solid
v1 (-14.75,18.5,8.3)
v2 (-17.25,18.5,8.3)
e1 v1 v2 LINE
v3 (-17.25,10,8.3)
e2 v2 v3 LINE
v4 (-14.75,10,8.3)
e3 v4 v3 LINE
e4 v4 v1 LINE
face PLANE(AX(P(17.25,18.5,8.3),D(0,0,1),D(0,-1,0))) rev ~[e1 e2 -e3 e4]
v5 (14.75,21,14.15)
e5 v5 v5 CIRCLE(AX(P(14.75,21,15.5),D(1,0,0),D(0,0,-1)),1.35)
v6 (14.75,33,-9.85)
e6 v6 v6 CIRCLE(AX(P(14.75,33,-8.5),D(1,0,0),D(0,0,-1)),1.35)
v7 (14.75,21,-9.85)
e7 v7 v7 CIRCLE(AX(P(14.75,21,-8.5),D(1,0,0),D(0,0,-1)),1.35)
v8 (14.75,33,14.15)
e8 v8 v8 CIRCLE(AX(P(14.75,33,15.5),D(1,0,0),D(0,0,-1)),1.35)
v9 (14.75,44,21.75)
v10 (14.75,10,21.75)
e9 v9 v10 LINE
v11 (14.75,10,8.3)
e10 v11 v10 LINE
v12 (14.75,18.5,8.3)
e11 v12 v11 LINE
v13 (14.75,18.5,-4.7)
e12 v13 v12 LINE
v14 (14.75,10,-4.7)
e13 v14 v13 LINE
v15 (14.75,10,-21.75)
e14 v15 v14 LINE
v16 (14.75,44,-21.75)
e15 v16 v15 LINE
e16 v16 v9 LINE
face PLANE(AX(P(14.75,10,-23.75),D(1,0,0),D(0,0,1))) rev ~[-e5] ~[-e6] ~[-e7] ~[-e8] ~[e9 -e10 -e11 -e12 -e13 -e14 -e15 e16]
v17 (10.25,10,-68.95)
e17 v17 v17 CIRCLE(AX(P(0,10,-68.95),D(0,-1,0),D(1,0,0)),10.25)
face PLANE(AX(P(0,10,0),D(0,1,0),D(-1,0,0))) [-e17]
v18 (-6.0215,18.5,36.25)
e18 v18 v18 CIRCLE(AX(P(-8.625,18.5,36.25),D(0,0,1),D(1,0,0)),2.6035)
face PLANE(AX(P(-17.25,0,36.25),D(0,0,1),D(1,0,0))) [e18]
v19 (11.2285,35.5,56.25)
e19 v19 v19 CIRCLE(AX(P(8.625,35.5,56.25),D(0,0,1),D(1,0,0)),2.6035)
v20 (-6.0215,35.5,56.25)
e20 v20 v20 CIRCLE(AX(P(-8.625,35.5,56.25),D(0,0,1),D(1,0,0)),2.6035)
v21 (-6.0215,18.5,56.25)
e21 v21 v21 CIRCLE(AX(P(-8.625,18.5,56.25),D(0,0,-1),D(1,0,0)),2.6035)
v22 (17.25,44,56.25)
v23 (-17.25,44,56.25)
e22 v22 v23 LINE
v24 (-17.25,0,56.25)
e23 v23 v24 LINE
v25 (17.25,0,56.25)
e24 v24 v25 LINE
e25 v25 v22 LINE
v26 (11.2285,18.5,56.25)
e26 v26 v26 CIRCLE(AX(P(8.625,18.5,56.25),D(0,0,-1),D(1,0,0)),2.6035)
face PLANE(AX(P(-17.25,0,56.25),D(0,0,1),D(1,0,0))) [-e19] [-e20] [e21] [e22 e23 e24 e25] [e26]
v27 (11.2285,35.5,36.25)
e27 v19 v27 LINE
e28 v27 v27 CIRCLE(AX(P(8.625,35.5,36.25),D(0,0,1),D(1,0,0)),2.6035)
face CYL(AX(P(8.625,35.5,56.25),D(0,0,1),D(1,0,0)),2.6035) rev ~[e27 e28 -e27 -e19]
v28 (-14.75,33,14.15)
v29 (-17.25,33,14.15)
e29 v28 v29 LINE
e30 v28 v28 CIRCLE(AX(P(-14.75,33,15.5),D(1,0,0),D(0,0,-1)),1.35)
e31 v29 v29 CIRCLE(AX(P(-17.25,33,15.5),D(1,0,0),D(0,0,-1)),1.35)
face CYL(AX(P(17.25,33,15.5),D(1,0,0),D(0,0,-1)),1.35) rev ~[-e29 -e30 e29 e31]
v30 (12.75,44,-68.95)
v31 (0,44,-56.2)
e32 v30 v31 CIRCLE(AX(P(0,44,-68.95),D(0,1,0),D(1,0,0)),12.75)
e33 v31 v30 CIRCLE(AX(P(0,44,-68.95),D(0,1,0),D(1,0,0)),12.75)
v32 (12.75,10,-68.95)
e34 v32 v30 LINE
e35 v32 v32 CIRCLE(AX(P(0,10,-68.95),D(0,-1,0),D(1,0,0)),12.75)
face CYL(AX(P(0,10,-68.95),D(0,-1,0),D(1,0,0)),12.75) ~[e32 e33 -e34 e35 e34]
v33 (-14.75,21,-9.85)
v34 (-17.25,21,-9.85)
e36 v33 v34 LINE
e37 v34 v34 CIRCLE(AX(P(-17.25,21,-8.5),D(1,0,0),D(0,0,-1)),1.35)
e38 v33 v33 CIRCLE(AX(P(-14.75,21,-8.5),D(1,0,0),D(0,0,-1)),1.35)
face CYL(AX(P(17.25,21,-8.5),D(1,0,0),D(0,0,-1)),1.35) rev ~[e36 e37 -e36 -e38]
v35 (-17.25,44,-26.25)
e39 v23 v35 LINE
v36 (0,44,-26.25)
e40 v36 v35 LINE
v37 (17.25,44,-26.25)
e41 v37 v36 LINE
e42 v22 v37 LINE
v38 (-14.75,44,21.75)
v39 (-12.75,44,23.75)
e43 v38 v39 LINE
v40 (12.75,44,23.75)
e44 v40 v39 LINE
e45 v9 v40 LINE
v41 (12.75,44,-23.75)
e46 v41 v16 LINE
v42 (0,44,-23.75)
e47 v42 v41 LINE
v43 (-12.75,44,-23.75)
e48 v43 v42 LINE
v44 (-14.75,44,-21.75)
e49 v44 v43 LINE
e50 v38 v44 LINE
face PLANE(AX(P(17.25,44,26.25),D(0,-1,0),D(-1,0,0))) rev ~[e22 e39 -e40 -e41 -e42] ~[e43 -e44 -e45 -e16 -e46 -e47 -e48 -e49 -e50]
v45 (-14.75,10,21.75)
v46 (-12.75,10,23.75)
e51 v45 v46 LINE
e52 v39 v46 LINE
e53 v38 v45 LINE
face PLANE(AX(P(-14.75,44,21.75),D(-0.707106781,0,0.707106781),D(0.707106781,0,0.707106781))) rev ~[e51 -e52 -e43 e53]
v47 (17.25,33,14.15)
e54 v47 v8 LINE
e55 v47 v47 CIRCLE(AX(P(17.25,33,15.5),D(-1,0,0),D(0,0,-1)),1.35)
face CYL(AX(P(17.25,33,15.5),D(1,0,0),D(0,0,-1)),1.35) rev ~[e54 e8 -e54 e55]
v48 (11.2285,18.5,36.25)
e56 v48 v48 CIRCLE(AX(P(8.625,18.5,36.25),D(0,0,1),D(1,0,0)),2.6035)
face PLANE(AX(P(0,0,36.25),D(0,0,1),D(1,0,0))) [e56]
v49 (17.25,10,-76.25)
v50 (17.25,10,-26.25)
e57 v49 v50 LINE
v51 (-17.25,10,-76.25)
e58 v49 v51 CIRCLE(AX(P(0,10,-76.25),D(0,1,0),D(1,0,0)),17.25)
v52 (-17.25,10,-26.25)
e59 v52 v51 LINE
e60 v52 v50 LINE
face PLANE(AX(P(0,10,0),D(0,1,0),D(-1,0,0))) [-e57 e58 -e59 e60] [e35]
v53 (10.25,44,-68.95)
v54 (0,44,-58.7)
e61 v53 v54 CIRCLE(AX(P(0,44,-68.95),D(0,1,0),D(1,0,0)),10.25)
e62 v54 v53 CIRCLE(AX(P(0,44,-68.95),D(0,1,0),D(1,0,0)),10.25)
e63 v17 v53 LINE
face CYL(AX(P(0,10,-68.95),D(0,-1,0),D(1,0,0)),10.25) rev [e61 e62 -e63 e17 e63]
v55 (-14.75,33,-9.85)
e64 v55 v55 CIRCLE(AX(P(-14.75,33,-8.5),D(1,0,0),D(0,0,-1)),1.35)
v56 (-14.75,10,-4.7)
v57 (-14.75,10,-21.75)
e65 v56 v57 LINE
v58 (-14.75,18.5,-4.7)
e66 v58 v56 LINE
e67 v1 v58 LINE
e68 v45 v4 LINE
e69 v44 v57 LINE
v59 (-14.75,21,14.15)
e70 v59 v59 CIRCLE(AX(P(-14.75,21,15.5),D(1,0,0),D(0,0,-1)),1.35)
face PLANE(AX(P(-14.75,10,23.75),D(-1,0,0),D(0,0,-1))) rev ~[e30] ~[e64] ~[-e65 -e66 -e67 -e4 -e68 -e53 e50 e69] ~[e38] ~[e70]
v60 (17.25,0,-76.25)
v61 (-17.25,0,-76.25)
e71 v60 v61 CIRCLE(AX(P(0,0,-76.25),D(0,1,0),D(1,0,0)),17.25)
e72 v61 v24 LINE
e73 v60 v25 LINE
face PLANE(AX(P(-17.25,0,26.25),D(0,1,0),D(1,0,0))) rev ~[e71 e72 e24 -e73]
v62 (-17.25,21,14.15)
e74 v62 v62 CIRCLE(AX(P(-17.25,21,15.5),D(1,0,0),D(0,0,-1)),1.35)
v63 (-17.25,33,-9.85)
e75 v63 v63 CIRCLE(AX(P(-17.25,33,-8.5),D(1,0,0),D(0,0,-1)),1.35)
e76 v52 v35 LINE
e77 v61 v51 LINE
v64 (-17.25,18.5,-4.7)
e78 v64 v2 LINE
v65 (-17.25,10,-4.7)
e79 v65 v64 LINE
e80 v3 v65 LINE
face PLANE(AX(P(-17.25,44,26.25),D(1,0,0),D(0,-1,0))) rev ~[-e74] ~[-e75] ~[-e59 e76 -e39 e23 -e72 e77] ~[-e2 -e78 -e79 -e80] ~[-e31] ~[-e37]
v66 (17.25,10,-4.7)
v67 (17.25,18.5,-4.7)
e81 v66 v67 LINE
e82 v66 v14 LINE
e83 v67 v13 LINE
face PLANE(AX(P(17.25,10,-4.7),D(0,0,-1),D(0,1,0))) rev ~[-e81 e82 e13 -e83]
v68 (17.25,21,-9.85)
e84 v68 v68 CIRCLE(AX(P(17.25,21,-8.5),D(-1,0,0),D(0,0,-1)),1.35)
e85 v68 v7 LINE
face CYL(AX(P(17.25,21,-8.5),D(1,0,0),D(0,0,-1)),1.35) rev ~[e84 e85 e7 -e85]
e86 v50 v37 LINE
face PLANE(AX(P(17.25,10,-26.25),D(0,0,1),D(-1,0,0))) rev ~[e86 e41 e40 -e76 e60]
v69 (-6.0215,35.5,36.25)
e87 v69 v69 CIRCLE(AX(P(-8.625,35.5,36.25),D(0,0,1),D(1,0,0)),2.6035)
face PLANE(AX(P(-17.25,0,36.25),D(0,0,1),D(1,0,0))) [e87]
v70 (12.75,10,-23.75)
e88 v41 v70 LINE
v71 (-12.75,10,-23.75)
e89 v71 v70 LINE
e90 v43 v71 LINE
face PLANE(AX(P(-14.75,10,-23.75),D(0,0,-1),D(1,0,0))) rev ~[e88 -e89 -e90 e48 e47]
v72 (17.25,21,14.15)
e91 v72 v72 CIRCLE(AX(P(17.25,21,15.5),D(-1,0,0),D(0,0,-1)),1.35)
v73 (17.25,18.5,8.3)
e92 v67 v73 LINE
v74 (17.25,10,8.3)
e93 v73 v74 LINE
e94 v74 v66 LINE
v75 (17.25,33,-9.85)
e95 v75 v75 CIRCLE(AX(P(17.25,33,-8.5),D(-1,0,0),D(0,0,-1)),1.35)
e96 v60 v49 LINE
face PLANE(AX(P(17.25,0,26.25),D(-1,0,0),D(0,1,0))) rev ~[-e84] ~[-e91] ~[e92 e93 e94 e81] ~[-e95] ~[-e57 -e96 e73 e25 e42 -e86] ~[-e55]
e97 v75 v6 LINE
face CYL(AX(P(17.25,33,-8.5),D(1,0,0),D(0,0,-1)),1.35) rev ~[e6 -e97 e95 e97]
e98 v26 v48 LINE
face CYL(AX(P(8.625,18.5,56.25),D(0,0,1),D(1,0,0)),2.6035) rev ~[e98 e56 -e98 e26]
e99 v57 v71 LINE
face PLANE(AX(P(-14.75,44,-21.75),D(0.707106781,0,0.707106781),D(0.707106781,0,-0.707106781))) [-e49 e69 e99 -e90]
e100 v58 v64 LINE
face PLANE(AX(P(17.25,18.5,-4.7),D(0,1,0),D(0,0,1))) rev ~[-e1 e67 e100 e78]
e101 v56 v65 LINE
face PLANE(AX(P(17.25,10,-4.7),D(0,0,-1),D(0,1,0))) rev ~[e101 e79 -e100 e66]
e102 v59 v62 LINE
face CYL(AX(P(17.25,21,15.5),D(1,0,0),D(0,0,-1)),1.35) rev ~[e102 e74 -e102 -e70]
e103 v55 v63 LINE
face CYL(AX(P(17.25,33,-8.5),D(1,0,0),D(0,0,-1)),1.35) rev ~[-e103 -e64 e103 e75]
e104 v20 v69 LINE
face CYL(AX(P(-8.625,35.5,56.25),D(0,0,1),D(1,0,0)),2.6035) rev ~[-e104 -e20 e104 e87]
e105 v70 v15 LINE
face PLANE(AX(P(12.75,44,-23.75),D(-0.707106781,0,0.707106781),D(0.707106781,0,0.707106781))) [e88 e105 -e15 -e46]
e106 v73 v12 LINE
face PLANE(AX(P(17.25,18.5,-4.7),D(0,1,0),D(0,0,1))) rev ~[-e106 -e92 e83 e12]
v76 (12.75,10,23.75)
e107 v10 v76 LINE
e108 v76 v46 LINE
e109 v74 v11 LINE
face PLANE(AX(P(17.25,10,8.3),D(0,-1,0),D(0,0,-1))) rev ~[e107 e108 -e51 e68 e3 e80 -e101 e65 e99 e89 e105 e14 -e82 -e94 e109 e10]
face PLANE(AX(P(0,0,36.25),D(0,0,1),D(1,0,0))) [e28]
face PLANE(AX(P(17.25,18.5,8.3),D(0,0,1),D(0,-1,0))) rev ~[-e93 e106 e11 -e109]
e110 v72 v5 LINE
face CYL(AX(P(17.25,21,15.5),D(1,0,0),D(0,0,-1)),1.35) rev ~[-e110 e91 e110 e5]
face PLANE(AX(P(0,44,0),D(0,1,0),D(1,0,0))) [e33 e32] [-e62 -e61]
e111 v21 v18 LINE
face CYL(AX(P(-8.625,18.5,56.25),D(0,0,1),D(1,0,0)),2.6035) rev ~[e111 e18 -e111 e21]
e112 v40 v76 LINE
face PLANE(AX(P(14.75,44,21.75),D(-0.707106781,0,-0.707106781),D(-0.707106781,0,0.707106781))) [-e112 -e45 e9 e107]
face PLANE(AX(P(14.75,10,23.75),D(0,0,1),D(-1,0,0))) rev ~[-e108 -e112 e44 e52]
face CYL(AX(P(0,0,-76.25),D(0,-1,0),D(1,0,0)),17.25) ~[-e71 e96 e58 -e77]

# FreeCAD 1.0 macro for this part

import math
import FreeCAD as App
import Part
import Sketcher
from FreeCAD import Vector


def add_polygon(sketch, points):
    """Adds a closed chain of lines whose ends are joined by coincident constraints."""
    first, n = sketch.GeometryCount, len(points)
    for a, b in zip(points, points[1:] + points[:1]):
        sketch.addGeometry(Part.LineSegment(App.Vector(*a, 0), App.Vector(*b, 0)), False)
    for i in range(n):
        sketch.addConstraint(Sketcher.Constraint("Coincident", first + i, 2, first + (i + 1) % n, 1))

doc = App.newDocument("Part")
params = doc.addObject("Spreadsheet::Sheet", "Params")
for row, (alias, value) in enumerate([
    ("sketch1_radius", "17.25 mm"),
    ("sketch1_height", "102.5 mm"),
    ("pad1_length", "10 mm"),
    ("sketch2_diameter", "25.5 mm"),
    ("sketch2_diameter2", "20.5 mm"),
    ("sketch2_width", "29.5 mm"),
    ("sketch2_height", "47.5 mm"),
    ("sketch2_width2", "34.5 mm"),
    ("pad2_length", "34 mm"),
    ("sketch3_diameter", "2.7 mm"),
    ("sketch4_width", "2 mm"),
    ("pad3_length", "34 mm"),
    ("sketch5_height", "44 mm"),
    ("sketch5_width", "34.5 mm"),
    ("pad4_length", "30 mm"),
    ("pocket2_length", "20 mm"),
    ("linearpattern_pitch", "17.25 mm"),
    ("sketch7_height", "13 mm"),
    ("sketch7_width", "8.5 mm"),
], start=1):
    params.set(f"A{row}", alias)
    params.set(f"B{row}", "=" + value)
    params.setAlias(f"B{row}", alias)

body = doc.addObject("PartDesign::Body", "Body")

sketch1 = body.newObject("Sketcher::SketchObject", "Sketch")
sketch1.AttachmentSupport = (doc.getObject("XZ_Plane"), [""])
sketch1.MapMode = "FlatFace"
sketch1.addGeometry([
    Part.LineSegment(Vector(-17, 26, 0), Vector(17, 26, 0)),
    Part.LineSegment(Vector(17, 26, 0), Vector(17, -76, 0)),
    Part.ArcOfCircle(Part.Circle(Vector(0, -76, 0), Vector(0, 0, 1), 17), math.radians(180), math.radians(360)),
    Part.LineSegment(Vector(-17, -76, 0), Vector(-17, 26, 0)),
], False)
sketch1.addConstraint([
    Sketcher.Constraint("Coincident", 0, 2, 1, 1),
    Sketcher.Constraint("Tangent", 1, 2, 2, 2),
    Sketcher.Constraint("Tangent", 2, 1, 3, 1),
    Sketcher.Constraint("Coincident", 3, 2, 0, 1),
    Sketcher.Constraint("Horizontal", 0),
    Sketcher.Constraint("Vertical", 1),
    Sketcher.Constraint("Vertical", 3),
    Sketcher.Constraint("PointOnObject", 2, 3, -2),
    Sketcher.Constraint("Radius", 2, 17.25),
    Sketcher.Constraint("DistanceY", 1, 2, 1, 1, 102.5),
    Sketcher.Constraint("DistanceY", 2, 3, -1, 1, 76.25),
])
sketch1.setExpression("Constraints[8]", "Params.sketch1_radius")
sketch1.setExpression("Constraints[9]", "Params.sketch1_height")
pad1 = body.newObject("PartDesign::Pad", "Pad")
pad1.Profile = sketch1
pad1.setExpression("Length", "Params.pad1_length")
pad1.Reversed = True

sketch2 = body.newObject("Sketcher::SketchObject", "Sketch001")
sketch2.AttachmentSupport = (doc.getObject("XZ_Plane"), [""])
sketch2.MapMode = "FlatFace"
sketch2.AttachmentOffset = App.Placement(Vector(0, 0, -10), App.Rotation())
sketch2.addGeometry(Part.Circle(Vector(0, -69, 0), Vector(0, 0, 1), 13), False)
sketch2.addGeometry(Part.Circle(Vector(0, -69, 0), Vector(0, 0, 1), 10), False)
add_polygon(sketch2, [(17, -26), (0, -26), (-17, -26), (-17, 26), (17, 26)])
add_polygon(sketch2, [(-15, -24), (0, -24), (15, -24), (15, 24), (-15, 24)])
sketch2.addConstraint([
    Sketcher.Constraint("Horizontal", 2),
    Sketcher.Constraint("Horizontal", 3),
    Sketcher.Constraint("Vertical", 4),
    Sketcher.Constraint("Horizontal", 5),
    Sketcher.Constraint("Vertical", 6),
    Sketcher.Constraint("Horizontal", 7),
    Sketcher.Constraint("Horizontal", 8),
    Sketcher.Constraint("Vertical", 9),
    Sketcher.Constraint("Horizontal", 10),
    Sketcher.Constraint("Vertical", 11),
    Sketcher.Constraint("Coincident", 1, 3, 0, 3),
    Sketcher.Constraint("Symmetric", 3, 2, 5, 2, -1, 1),
    Sketcher.Constraint("Symmetric", 8, 2, 10, 2, -1, 1),
    Sketcher.Constraint("PointOnObject", 0, 3, -2),
    Sketcher.Constraint("PointOnObject", 2, 2, -2),
    Sketcher.Constraint("PointOnObject", 7, 2, -2),
    Sketcher.Constraint("Diameter", 0, 25.5),
    Sketcher.Constraint("Diameter", 1, 20.5),
    Sketcher.Constraint("DistanceX", 10, 2, 10, 1, 29.5),
    Sketcher.Constraint("DistanceY", 9, 1, 9, 2, 47.5),
    Sketcher.Constraint("DistanceY", 0, 3, 7, 2, 45.2),
    Sketcher.Constraint("DistanceX", 5, 1, 5, 2, 34.5),
    Sketcher.Constraint("DistanceY", 4, 1, 4, 2, 52.5),
])
sketch2.setExpression("Constraints[26]", "Params.sketch2_diameter")
sketch2.setExpression("Constraints[27]", "Params.sketch2_diameter2")
sketch2.setExpression("Constraints[28]", "Params.sketch2_width")
sketch2.setExpression("Constraints[29]", "Params.sketch2_height")
sketch2.setExpression("Constraints[31]", "Params.sketch2_width2")
pad2 = body.newObject("PartDesign::Pad", "Pad001")
pad2.Profile = sketch2
pad2.setExpression("Length", "Params.pad2_length")
pad2.Reversed = True

sketch3 = body.newObject("Sketcher::SketchObject", "Sketch002")
sketch3.AttachmentSupport = (doc.getObject("YZ_Plane"), [""])
sketch3.MapMode = "FlatFace"
sketch3.AttachmentOffset = App.Placement(Vector(0, 0, 17.25), App.Rotation())
sketch3.addGeometry([
    Part.Circle(Vector(33, -8.5, 0), Vector(0, 0, 1), 1.4),
    Part.Circle(Vector(21, -8.5, 0), Vector(0, 0, 1), 1.4),
    Part.Circle(Vector(33, 15.5, 0), Vector(0, 0, 1), 1.4),
    Part.Circle(Vector(21, 15.5, 0), Vector(0, 0, 1), 1.4),
], False)
sketch3.addConstraint([
    Sketcher.Constraint("Equal", 0, 1),
    Sketcher.Constraint("Equal", 1, 2),
    Sketcher.Constraint("Equal", 2, 3),
    Sketcher.Constraint("Horizontal", 0, 3, 1, 3),
    Sketcher.Constraint("Horizontal", 2, 3, 3, 3),
    Sketcher.Constraint("Vertical", 0, 3, 2, 3),
    Sketcher.Constraint("Vertical", 1, 3, 3, 3),
    Sketcher.Constraint("Diameter", 0, 2.7),
    Sketcher.Constraint("DistanceX", 1, 3, 0, 3, 12.0),
    Sketcher.Constraint("DistanceY", 0, 3, 2, 3, 24.0),
    Sketcher.Constraint("DistanceX", -1, 1, 0, 3, 33.0),
    Sketcher.Constraint("DistanceY", 0, 3, -1, 1, 8.5),
])
sketch3.setExpression("Constraints[7]", "Params.sketch3_diameter")
pocket1 = body.newObject("PartDesign::Pocket", "Pocket")
pocket1.Profile = sketch3
pocket1.Type = "ThroughAll"

sketch4 = body.newObject("Sketcher::SketchObject", "Sketch003")
sketch4.AttachmentSupport = (doc.getObject("XZ_Plane"), [""])
sketch4.MapMode = "FlatFace"
sketch4.AttachmentOffset = App.Placement(Vector(0, 0, -44), App.Rotation())
add_polygon(sketch4, [(14.8, 23.8), (14.8, 21.8), (12.8, 23.8)])
add_polygon(sketch4, [(12.8, -23.8), (14.8, -21.8), (14.8, -23.8)])
add_polygon(sketch4, [(-14.8, 23.8), (-12.8, 23.8), (-14.8, 21.8)])
add_polygon(sketch4, [(-14.8, -21.8), (-12.8, -23.8), (-14.8, -23.8)])
sketch4.addConstraint([
    Sketcher.Constraint("Vertical", 0),
    Sketcher.Constraint("Horizontal", 2),
    Sketcher.Constraint("Vertical", 4),
    Sketcher.Constraint("Horizontal", 5),
    Sketcher.Constraint("Horizontal", 6),
    Sketcher.Constraint("Vertical", 8),
    Sketcher.Constraint("Horizontal", 10),
    Sketcher.Constraint("Vertical", 11),
    Sketcher.Constraint("Symmetric", 5, 2, 6, 2, -1, 1),
    Sketcher.Constraint("Symmetric", 3, 2, 7, 2, -1, 1),
    Sketcher.Constraint("Symmetric", 1, 2, 9, 2, -1, 1),
    Sketcher.Constraint("Symmetric", 0, 2, 11, 2, -1, 1),
    Sketcher.Constraint("Symmetric", 1, 2, 6, 2, -2),
    Sketcher.Constraint("Symmetric", 0, 2, 7, 2, -2),
    Sketcher.Constraint("Perpendicular", 1, 3),
    Sketcher.Constraint("DistanceY", 3, 2, 0, 2, 43.5),
    Sketcher.Constraint("DistanceX", 6, 2, 1, 2, 25.5),
    Sketcher.Constraint("DistanceX", 2, 1, 2, 2, 2.0),
])
sketch4.setExpression("Constraints[29]", "Params.sketch4_width")
pad3 = body.newObject("PartDesign::Pad", "Pad002")
pad3.Profile = sketch4
pad3.setExpression("Length", "Params.pad3_length")

sketch5 = body.newObject("Sketcher::SketchObject", "Sketch004")
sketch5.AttachmentSupport = (doc.getObject("XY_Plane"), [""])
sketch5.MapMode = "FlatFace"
sketch5.AttachmentOffset = App.Placement(Vector(0, 0, 26.25), App.Rotation())
add_polygon(sketch5, [(-17, 44), (-17, 0), (17, 0), (17, 44)])
sketch5.addConstraint([
    Sketcher.Constraint("Vertical", 0),
    Sketcher.Constraint("Horizontal", 1),
    Sketcher.Constraint("Vertical", 2),
    Sketcher.Constraint("Horizontal", 3),
    Sketcher.Constraint("Symmetric", 0, 2, 1, 2, -1, 1),
    Sketcher.Constraint("DistanceY", 0, 2, 0, 1, 44.0),
    Sketcher.Constraint("DistanceX", 1, 1, 1, 2, 34.5),
])
sketch5.setExpression("Constraints[9]", "Params.sketch5_height")
sketch5.setExpression("Constraints[10]", "Params.sketch5_width")
pad4 = body.newObject("PartDesign::Pad", "Pad003")
pad4.Profile = sketch5
pad4.setExpression("Length", "Params.pad4_length")

sketch6 = body.newObject("Sketcher::SketchObject", "Sketch005")
sketch6.AttachmentSupport = (doc.getObject("XY_Plane"), [""])
sketch6.MapMode = "FlatFace"
sketch6.AttachmentOffset = App.Placement(Vector(0, 0, 56.25), App.Rotation())
sketch6.addGeometry([
    Part.Circle(Vector(-8.6, 35.5, 0), Vector(0, 0, 1), 2.6),
    Part.Circle(Vector(-8.6, 18.5, 0), Vector(0, 0, 1), 2.6),
], False)
sketch6.addConstraint([
    Sketcher.Constraint("Equal", 0, 1),
    Sketcher.Constraint("Vertical", 0, 3, 1, 3),
    Sketcher.Constraint("Diameter", 0, 5.207),
    Sketcher.Constraint("DistanceX", 0, 3, -1, 1, 8.625),
    Sketcher.Constraint("DistanceY", 1, 3, 0, 3, 17.0),
    Sketcher.Constraint("DistanceY", -1, 1, 0, 3, 35.5),
])
pocket2 = body.newObject("PartDesign::Pocket", "Pocket001")
pocket2.Profile = sketch6
pocket2.setExpression("Length", "Params.pocket2_length")
doc.recompute()

linearpattern = body.newObject("PartDesign::LinearPattern", "LinearPattern")
linearpattern.Originals = [pocket2]
linearpattern.Direction = (doc.getObject("X_Axis"), [""])
linearpattern.Mode = "offset"
linearpattern.setExpression("Offset", "Params.linearpattern_pitch")
linearpattern.Occurrences = 2
body.Tip = linearpattern

sketch7 = body.newObject("Sketcher::SketchObject", "Sketch006")
sketch7.AttachmentSupport = (doc.getObject("YZ_Plane"), [""])
sketch7.MapMode = "FlatFace"
sketch7.AttachmentOffset = App.Placement(Vector(0, 0, 17.25), App.Rotation())
add_polygon(sketch7, [(18, 8), (10, 8), (10, -5), (18, -5)])
sketch7.addConstraint([
    Sketcher.Constraint("Horizontal", 0),
    Sketcher.Constraint("Vertical", 1),
    Sketcher.Constraint("Horizontal", 2),
    Sketcher.Constraint("Vertical", 3),
    Sketcher.Constraint("DistanceY", 1, 2, 1, 1, 13.0),
    Sketcher.Constraint("DistanceX", 0, 2, 0, 1, 8.5),
    Sketcher.Constraint("DistanceX", -1, 1, 0, 2, 10.0),
    Sketcher.Constraint("DistanceY", -1, 1, 0, 2, 8.3),
])
sketch7.setExpression("Constraints[8]", "Params.sketch7_height")
sketch7.setExpression("Constraints[9]", "Params.sketch7_width")
pocket3 = body.newObject("PartDesign::Pocket", "Pocket002")
pocket3.Profile = sketch7
pocket3.Type = "ThroughAll"

doc.recompute()
